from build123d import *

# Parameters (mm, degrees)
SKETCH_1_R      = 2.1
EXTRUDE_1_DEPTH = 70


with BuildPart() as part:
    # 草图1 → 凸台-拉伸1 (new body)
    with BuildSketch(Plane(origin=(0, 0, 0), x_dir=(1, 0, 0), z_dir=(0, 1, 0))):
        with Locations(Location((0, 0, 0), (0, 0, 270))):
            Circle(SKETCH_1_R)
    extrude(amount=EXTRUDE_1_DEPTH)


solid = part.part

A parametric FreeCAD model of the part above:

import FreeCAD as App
import Part
import Sketcher

V = App.Vector
Q = App.Units.Quantity

doc = App.newDocument("Part")
params = doc.addObject("Spreadsheet::Sheet", "Params")
for row, (alias, value) in enumerate([
    ("sketch1_diameter", "4.2 mm"),
    ("pad1_length", "70 mm"),
], start=1):
    params.set(f"A{row}", alias)
    params.set(f"B{row}", "=" + value)
    params.setAlias(f"B{row}", alias)

body = doc.addObject("PartDesign::Body", "Body")

sketch1 = body.newObject("Sketcher::SketchObject", "Sketch")
sketch1.AttachmentSupport = (doc.getObject("XZ_Plane"), [""])
sketch1.MapMode = "FlatFace"
sketch1.addGeometry(Part.Circle(V(0, 0, 0), V(0, 0, 1), 2.1), False)
sketch1.addConstraint([
    Sketcher.Constraint("Coincident", 0, 3, -1, 1),
    Sketcher.Constraint("Diameter", 0, Q("4.2 mm")),
])
sketch1.setExpression("Constraints[1]", "Params.sketch1_diameter")
pad1 = body.newObject("PartDesign::Pad", "Pad")
pad1.Profile = sketch1
pad1.setExpression("Length", "Params.pad1_length")
pad1.Reversed = True

doc.recompute()
